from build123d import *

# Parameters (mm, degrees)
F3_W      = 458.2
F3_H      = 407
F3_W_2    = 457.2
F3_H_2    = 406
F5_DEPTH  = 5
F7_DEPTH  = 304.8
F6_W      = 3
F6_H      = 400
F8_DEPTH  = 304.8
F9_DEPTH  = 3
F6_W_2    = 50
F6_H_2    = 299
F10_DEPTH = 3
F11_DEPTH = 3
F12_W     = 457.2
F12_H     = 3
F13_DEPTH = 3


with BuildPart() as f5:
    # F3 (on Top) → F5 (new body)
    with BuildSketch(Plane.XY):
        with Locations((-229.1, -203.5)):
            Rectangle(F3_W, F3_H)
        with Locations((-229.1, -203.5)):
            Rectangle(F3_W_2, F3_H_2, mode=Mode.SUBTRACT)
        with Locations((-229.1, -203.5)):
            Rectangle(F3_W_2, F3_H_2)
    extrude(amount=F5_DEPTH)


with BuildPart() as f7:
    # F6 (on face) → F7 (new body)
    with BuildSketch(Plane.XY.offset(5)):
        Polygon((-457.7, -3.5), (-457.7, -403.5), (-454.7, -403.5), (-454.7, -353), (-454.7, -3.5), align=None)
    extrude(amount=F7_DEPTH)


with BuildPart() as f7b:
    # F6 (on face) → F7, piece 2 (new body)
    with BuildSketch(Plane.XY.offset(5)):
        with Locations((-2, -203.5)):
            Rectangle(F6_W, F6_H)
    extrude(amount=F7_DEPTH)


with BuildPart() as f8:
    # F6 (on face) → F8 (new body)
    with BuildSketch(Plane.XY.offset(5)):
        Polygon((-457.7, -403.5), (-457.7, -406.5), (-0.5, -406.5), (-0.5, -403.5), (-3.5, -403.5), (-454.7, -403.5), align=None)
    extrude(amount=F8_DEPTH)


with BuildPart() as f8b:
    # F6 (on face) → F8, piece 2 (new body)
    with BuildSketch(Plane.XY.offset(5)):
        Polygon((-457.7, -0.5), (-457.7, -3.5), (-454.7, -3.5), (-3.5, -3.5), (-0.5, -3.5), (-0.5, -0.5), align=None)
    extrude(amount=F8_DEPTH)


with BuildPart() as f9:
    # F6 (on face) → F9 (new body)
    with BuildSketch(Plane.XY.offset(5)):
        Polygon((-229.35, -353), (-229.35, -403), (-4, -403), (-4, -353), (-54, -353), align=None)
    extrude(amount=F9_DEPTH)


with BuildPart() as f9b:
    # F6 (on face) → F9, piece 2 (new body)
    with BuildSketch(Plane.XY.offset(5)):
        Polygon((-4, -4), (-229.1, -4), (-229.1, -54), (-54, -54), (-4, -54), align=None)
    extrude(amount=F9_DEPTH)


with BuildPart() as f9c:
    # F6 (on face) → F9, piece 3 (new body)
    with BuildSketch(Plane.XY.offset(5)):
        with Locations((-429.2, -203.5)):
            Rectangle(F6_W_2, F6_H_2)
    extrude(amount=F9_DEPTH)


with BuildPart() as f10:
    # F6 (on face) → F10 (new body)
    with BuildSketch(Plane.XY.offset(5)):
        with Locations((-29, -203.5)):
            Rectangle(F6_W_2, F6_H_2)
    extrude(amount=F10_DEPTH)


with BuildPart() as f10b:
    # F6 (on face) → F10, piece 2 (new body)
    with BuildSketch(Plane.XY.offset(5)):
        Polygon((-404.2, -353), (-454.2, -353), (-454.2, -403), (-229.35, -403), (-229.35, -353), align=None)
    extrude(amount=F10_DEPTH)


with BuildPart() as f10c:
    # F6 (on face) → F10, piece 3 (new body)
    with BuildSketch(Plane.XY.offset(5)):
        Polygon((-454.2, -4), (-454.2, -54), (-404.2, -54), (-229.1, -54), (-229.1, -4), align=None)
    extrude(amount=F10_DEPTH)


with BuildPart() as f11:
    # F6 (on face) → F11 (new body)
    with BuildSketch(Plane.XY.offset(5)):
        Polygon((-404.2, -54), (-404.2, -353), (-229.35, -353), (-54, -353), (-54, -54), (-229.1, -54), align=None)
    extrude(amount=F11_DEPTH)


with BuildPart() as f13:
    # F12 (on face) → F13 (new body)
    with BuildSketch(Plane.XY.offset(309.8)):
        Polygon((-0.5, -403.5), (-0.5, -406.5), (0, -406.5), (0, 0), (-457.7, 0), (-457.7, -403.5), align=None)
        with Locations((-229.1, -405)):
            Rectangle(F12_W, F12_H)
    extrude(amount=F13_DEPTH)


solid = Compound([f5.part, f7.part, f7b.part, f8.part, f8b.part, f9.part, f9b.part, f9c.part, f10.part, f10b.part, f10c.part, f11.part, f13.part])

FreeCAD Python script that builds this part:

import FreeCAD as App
import Part
import Sketcher

V = App.Vector
Q = App.Units.Quantity


def add_polygon(sketch, points):
    """Adds a closed chain of lines whose ends are joined by coincident constraints."""
    first, n = sketch.GeometryCount, len(points)
    for a, b in zip(points, points[1:] + points[:1]):
        sketch.addGeometry(Part.LineSegment(App.Vector(*a, 0), App.Vector(*b, 0)), False)
    for i in range(n):
        sketch.addConstraint(Sketcher.Constraint("Coincident", first + i, 2, first + (i + 1) % n, 1))

doc = App.newDocument("Part")
body = doc.addObject("PartDesign::Body", "Body")

# Sketch on XY plane
sketch1 = body.newObject("Sketcher::SketchObject", "Sketch")
sketch1.AttachmentSupport = (doc.getObject("XY_Plane"), [""])
sketch1.MapMode = "FlatFace"
add_polygon(sketch1, [(-458, 0), (-458, -407), (0, -407), (0, 0)])  # lines 0-3
sketch1.addConstraint([
    Sketcher.Constraint("Vertical", 0),
    Sketcher.Constraint("Horizontal", 1),
    Sketcher.Constraint("Vertical", 2),
    Sketcher.Constraint("Horizontal", 3),
    Sketcher.Constraint("Coincident", 2, 2, -1, 1),
    Sketcher.Constraint("DistanceY", 0, 2, 0, 1, Q("407 mm")),
    Sketcher.Constraint("DistanceX", 1, 1, 1, 2, Q("458.2 mm")),
])
pad1 = body.newObject("PartDesign::Pad", "Pad")
pad1.Profile = sketch1
pad1.Length = 5
body2 = doc.addObject("PartDesign::Body", "Body001")

# Sketch on XY plane
sketch2 = body2.newObject("Sketcher::SketchObject", "Sketch001")
sketch2.AttachmentSupport = (doc.getObject("XY_Plane001"), [""])
sketch2.MapMode = "FlatFace"
sketch2.AttachmentOffset = App.Placement(V(0, 0, 5), App.Rotation())
add_polygon(sketch2, [(-457.7, -3.5), (-457.7, -403.5), (-454.7, -403.5), (-454.7, -3.5)])  # lines 0-3
sketch2.addConstraint([
    Sketcher.Constraint("Vertical", 0),
    Sketcher.Constraint("Horizontal", 1),
    Sketcher.Constraint("Vertical", 2),
    Sketcher.Constraint("Horizontal", 3),
    Sketcher.Constraint("DistanceX", 1, 1, 1, 2, Q("3 mm")),
    Sketcher.Constraint("DistanceY", 0, 2, 0, 1, Q("400 mm")),
    Sketcher.Constraint("DistanceX", 0, 2, -1, 1, Q("457.7 mm")),
    Sketcher.Constraint("DistanceY", 0, 2, -1, 1, Q("403.5 mm")),
])
pad2 = body2.newObject("PartDesign::Pad", "Pad001")
pad2.Profile = sketch2
pad2.Length = 304.8
body3 = doc.addObject("PartDesign::Body", "Body002")

# Sketch on XY plane
sketch3 = body3.newObject("Sketcher::SketchObject", "Sketch002")
sketch3.AttachmentSupport = (doc.getObject("XY_Plane002"), [""])
sketch3.MapMode = "FlatFace"
sketch3.AttachmentOffset = App.Placement(V(0, 0, 5), App.Rotation())
add_polygon(sketch3, [(-3.5, -3.5), (-3.5, -403.5), (-0.5, -403.5), (-0.5, -3.5)])  # lines 0-3
sketch3.addConstraint([
    Sketcher.Constraint("Vertical", 0),
    Sketcher.Constraint("Horizontal", 1),
    Sketcher.Constraint("Vertical", 2),
    Sketcher.Constraint("Horizontal", 3),
    Sketcher.Constraint("DistanceX", 1, 1, 1, 2, Q("3 mm")),
    Sketcher.Constraint("DistanceY", 0, 2, 0, 1, Q("400 mm")),
    Sketcher.Constraint("DistanceX", 0, 2, -1, 1, Q("3.5 mm")),
    Sketcher.Constraint("DistanceY", 0, 2, -1, 1, Q("403.5 mm")),
])
pad3 = body3.newObject("PartDesign::Pad", "Pad002")
pad3.Profile = sketch3
pad3.Length = 304.8
body4 = doc.addObject("PartDesign::Body", "Body003")

# Sketch on XY plane
sketch4 = body4.newObject("Sketcher::SketchObject", "Sketch003")
sketch4.AttachmentSupport = (doc.getObject("XY_Plane003"), [""])
sketch4.MapMode = "FlatFace"
sketch4.AttachmentOffset = App.Placement(V(0, 0, 5), App.Rotation())
add_polygon(sketch4, [(-457.7, -403.5), (-457.7, -406.5), (-0.5, -406.5), (-0.5, -403.5)])  # lines 0-3
sketch4.addConstraint([
    Sketcher.Constraint("Vertical", 0),
    Sketcher.Constraint("Horizontal", 1),
    Sketcher.Constraint("Vertical", 2),
    Sketcher.Constraint("Horizontal", 3),
    Sketcher.Constraint("DistanceY", 0, 2, 0, 1, Q("3 mm")),
    Sketcher.Constraint("DistanceX", 1, 1, 1, 2, Q("457.2 mm")),
    Sketcher.Constraint("DistanceX", 0, 2, -1, 1, Q("457.7 mm")),
    Sketcher.Constraint("DistanceY", 0, 2, -1, 1, Q("406.5 mm")),
])
pad4 = body4.newObject("PartDesign::Pad", "Pad003")
pad4.Profile = sketch4
pad4.Length = 304.8
body5 = doc.addObject("PartDesign::Body", "Body004")

# Sketch on XY plane
sketch5 = body5.newObject("Sketcher::SketchObject", "Sketch004")
sketch5.AttachmentSupport = (doc.getObject("XY_Plane004"), [""])
sketch5.MapMode = "FlatFace"
sketch5.AttachmentOffset = App.Placement(V(0, 0, 5), App.Rotation())
add_polygon(sketch5, [(-457.7, -0.5), (-457.7, -3.5), (-0.5, -3.5), (-0.5, -0.5)])  # lines 0-3
sketch5.addConstraint([
    Sketcher.Constraint("Vertical", 0),
    Sketcher.Constraint("Horizontal", 1),
    Sketcher.Constraint("Vertical", 2),
    Sketcher.Constraint("Horizontal", 3),
    Sketcher.Constraint("DistanceY", 0, 2, 0, 1, Q("3 mm")),
    Sketcher.Constraint("DistanceX", 1, 1, 1, 2, Q("457.2 mm")),
    Sketcher.Constraint("DistanceX", 0, 2, -1, 1, Q("457.7 mm")),
    Sketcher.Constraint("DistanceY", 0, 2, -1, 1, Q("3.5 mm")),
])
pad5 = body5.newObject("PartDesign::Pad", "Pad004")
pad5.Profile = sketch5
pad5.Length = 304.8
body6 = doc.addObject("PartDesign::Body", "Body005")

# Sketch on XY plane
sketch6 = body6.newObject("Sketcher::SketchObject", "Sketch005")
sketch6.AttachmentSupport = (doc.getObject("XY_Plane005"), [""])
sketch6.MapMode = "FlatFace"
sketch6.AttachmentOffset = App.Placement(V(0, 0, 5), App.Rotation())
add_polygon(sketch6, [(-229, -353), (-229, -403), (-4, -403), (-4, -353)])  # lines 0-3
sketch6.addConstraint([
    Sketcher.Constraint("Vertical", 0),
    Sketcher.Constraint("Horizontal", 1),
    Sketcher.Constraint("Vertical", 2),
    Sketcher.Constraint("Horizontal", 3),
    Sketcher.Constraint("DistanceY", 0, 2, 0, 1, Q("50 mm")),
    Sketcher.Constraint("DistanceY", 0, 2, -1, 1, Q("403 mm")),
    Sketcher.Constraint("DistanceX", 1, 2, -1, 1, Q("4 mm")),
    Sketcher.Constraint("DistanceX", 1, 1, 1, 2, Q("225.35 mm")),
])
pad6 = body6.newObject("PartDesign::Pad", "Pad005")
pad6.Profile = sketch6
pad6.Length = 3
body7 = doc.addObject("PartDesign::Body", "Body006")

# Sketch on XY plane
sketch7 = body7.newObject("Sketcher::SketchObject", "Sketch006")
sketch7.AttachmentSupport = (doc.getObject("XY_Plane006"), [""])
sketch7.MapMode = "FlatFace"
sketch7.AttachmentOffset = App.Placement(V(0, 0, 5), App.Rotation())
add_polygon(sketch7, [(-4, -4), (-229, -4), (-229, -54), (-4, -54)])  # lines 0-3
sketch7.addConstraint([
    Sketcher.Constraint("Horizontal", 0),
    Sketcher.Constraint("Vertical", 1),
    Sketcher.Constraint("Horizontal", 2),
    Sketcher.Constraint("Vertical", 3),
    Sketcher.Constraint("DistanceY", 1, 2, 1, 1, Q("50 mm")),
    Sketcher.Constraint("DistanceX", 0, 2, 0, 1, Q("225.1 mm")),
    Sketcher.Constraint("DistanceY", 0, 2, -1, 1, Q("4 mm")),
    Sketcher.Constraint("DistanceX", 2, 2, -1, 1, Q("4 mm")),
])
pad7 = body7.newObject("PartDesign::Pad", "Pad006")
pad7.Profile = sketch7
pad7.Length = 3
body8 = doc.addObject("PartDesign::Body", "Body007")

# Sketch on XY plane
sketch8 = body8.newObject("Sketcher::SketchObject", "Sketch007")
sketch8.AttachmentSupport = (doc.getObject("XY_Plane007"), [""])
sketch8.MapMode = "FlatFace"
sketch8.AttachmentOffset = App.Placement(V(0, 0, 5), App.Rotation())
add_polygon(sketch8, [(-454, -54), (-454, -353), (-404, -353), (-404, -54)])  # lines 0-3
sketch8.addConstraint([
    Sketcher.Constraint("Vertical", 0),
    Sketcher.Constraint("Horizontal", 1),
    Sketcher.Constraint("Vertical", 2),
    Sketcher.Constraint("Horizontal", 3),
    Sketcher.Constraint("DistanceX", 1, 1, 1, 2, Q("50 mm")),
    Sketcher.Constraint("DistanceY", 0, 2, 0, 1, Q("299 mm")),
    Sketcher.Constraint("DistanceY", 0, 2, -1, 1, Q("353 mm")),
    Sketcher.Constraint("DistanceX", 0, 2, -1, 1, Q("454.2 mm")),
])
pad8 = body8.newObject("PartDesign::Pad", "Pad007")
pad8.Profile = sketch8
pad8.Length = 3
body9 = doc.addObject("PartDesign::Body", "Body008")

# Sketch on XY plane
sketch9 = body9.newObject("Sketcher::SketchObject", "Sketch008")
sketch9.AttachmentSupport = (doc.getObject("XY_Plane008"), [""])
sketch9.MapMode = "FlatFace"
sketch9.AttachmentOffset = App.Placement(V(0, 0, 5), App.Rotation())
add_polygon(sketch9, [(-54, -54), (-54, -353), (-4, -353), (-4, -54)])  # lines 0-3
sketch9.addConstraint([
    Sketcher.Constraint("Vertical", 0),
    Sketcher.Constraint("Horizontal", 1),
    Sketcher.Constraint("Vertical", 2),
    Sketcher.Constraint("Horizontal", 3),
    Sketcher.Constraint("DistanceX", 1, 1, 1, 2, Q("50 mm")),
    Sketcher.Constraint("DistanceY", 0, 2, 0, 1, Q("299 mm")),
    Sketcher.Constraint("DistanceX", 0, 2, -1, 1, Q("54 mm")),
    Sketcher.Constraint("DistanceY", 0, 2, -1, 1, Q("353 mm")),
])
pad9 = body9.newObject("PartDesign::Pad", "Pad008")
pad9.Profile = sketch9
pad9.Length = 3
body10 = doc.addObject("PartDesign::Body", "Body009")

# Sketch on XY plane
sketch10 = body10.newObject("Sketcher::SketchObject", "Sketch009")
sketch10.AttachmentSupport = (doc.getObject("XY_Plane009"), [""])
sketch10.MapMode = "FlatFace"
sketch10.AttachmentOffset = App.Placement(V(0, 0, 5), App.Rotation())
add_polygon(sketch10, [(-454, -353), (-454, -403), (-229, -403), (-229, -353)])  # lines 0-3
sketch10.addConstraint([
    Sketcher.Constraint("Vertical", 0),
    Sketcher.Constraint("Horizontal", 1),
    Sketcher.Constraint("Vertical", 2),
    Sketcher.Constraint("Horizontal", 3),
    Sketcher.Constraint("DistanceY", 0, 2, 0, 1, Q("50 mm")),
    Sketcher.Constraint("DistanceY", 0, 2, -1, 1, Q("403 mm")),
    Sketcher.Constraint("DistanceX", 1, 1, 1, 2, Q("224.85 mm")),
    Sketcher.Constraint("DistanceX", 0, 2, -1, 1, Q("454.2 mm")),
])
pad10 = body10.newObject("PartDesign::Pad", "Pad009")
pad10.Profile = sketch10
pad10.Length = 3
body11 = doc.addObject("PartDesign::Body", "Body010")

# Sketch on XY plane
sketch11 = body11.newObject("Sketcher::SketchObject", "Sketch010")
sketch11.AttachmentSupport = (doc.getObject("XY_Plane010"), [""])
sketch11.MapMode = "FlatFace"
sketch11.AttachmentOffset = App.Placement(V(0, 0, 5), App.Rotation())
add_polygon(sketch11, [(-454, -4), (-454, -54), (-229, -54), (-229, -4)])  # lines 0-3
sketch11.addConstraint([
    Sketcher.Constraint("Vertical", 0),
    Sketcher.Constraint("Horizontal", 1),
    Sketcher.Constraint("Vertical", 2),
    Sketcher.Constraint("Horizontal", 3),
    Sketcher.Constraint("DistanceY", 0, 2, 0, 1, Q("50 mm")),
    Sketcher.Constraint("DistanceX", 1, 1, 1, 2, Q("225.1 mm")),
    Sketcher.Constraint("DistanceY", 0, 2, -1, 1, Q("54 mm")),
    Sketcher.Constraint("DistanceX", 0, 2, -1, 1, Q("454.2 mm")),
])
pad11 = body11.newObject("PartDesign::Pad", "Pad010")
pad11.Profile = sketch11
pad11.Length = 3
body12 = doc.addObject("PartDesign::Body", "Body011")

# Sketch on XY plane
sketch12 = body12.newObject("Sketcher::SketchObject", "Sketch011")
sketch12.AttachmentSupport = (doc.getObject("XY_Plane011"), [""])
sketch12.MapMode = "FlatFace"
sketch12.AttachmentOffset = App.Placement(V(0, 0, 5), App.Rotation())
add_polygon(sketch12, [(-404, -54), (-404, -353), (-54, -353), (-54, -54)])  # lines 0-3
sketch12.addConstraint([
    Sketcher.Constraint("Vertical", 0),
    Sketcher.Constraint("Horizontal", 1),
    Sketcher.Constraint("Vertical", 2),
    Sketcher.Constraint("Horizontal", 3),
    Sketcher.Constraint("DistanceY", 0, 2, 0, 1, Q("299 mm")),
    Sketcher.Constraint("DistanceX", 1, 1, 1, 2, Q("350.2 mm")),
    Sketcher.Constraint("DistanceY", 0, 2, -1, 1, Q("353 mm")),
    Sketcher.Constraint("DistanceX", 1, 2, -1, 1, Q("54 mm")),
])
pad12 = body12.newObject("PartDesign::Pad", "Pad011")
pad12.Profile = sketch12
pad12.Length = 3
body13 = doc.addObject("PartDesign::Body", "Body012")

# Sketch on XY plane
sketch13 = body13.newObject("Sketcher::SketchObject", "Sketch012")
sketch13.AttachmentSupport = (doc.getObject("XY_Plane012"), [""])
sketch13.MapMode = "FlatFace"
sketch13.AttachmentOffset = App.Placement(V(0, 0, 309.8), App.Rotation())
add_polygon(sketch13, [(0, -406), (0, 0), (-458, 0), (-458, -406)])  # lines 0-3
sketch13.addConstraint([
    Sketcher.Constraint("Vertical", 0),
    Sketcher.Constraint("Horizontal", 1),
    Sketcher.Constraint("Vertical", 2),
    Sketcher.Constraint("Horizontal", 3),
    Sketcher.Constraint("Coincident", 0, 2, -1, 1),
    Sketcher.Constraint("DistanceX", 1, 2, 1, 1, Q("457.7 mm")),
    Sketcher.Constraint("DistanceY", 0, 1, 0, 2, Q("406.5 mm")),
])
pad13 = body13.newObject("PartDesign::Pad", "Pad012")
pad13.Profile = sketch13
pad13.Length = 3

doc.recompute()
